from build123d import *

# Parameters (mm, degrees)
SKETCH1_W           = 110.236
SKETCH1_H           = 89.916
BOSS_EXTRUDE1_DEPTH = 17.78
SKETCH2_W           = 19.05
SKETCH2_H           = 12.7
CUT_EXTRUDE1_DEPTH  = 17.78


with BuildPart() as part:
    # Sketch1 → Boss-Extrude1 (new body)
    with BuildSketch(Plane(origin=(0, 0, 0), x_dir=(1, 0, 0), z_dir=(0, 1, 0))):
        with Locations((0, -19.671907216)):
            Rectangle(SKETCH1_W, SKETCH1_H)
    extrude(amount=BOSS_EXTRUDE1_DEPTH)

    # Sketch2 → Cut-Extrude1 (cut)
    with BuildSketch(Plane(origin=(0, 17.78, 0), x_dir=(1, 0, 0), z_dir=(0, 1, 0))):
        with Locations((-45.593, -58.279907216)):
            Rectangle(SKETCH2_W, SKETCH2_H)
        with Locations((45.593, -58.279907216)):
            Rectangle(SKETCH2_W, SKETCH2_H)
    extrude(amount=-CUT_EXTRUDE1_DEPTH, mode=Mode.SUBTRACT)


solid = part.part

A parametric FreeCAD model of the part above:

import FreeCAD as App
import Part
import Sketcher
from FreeCAD import Vector
Q = App.Units.Quantity


def add_polygon(sketch, points):
    """Adds a closed chain of lines whose ends are joined by coincident constraints."""
    first, n = sketch.GeometryCount, len(points)
    for a, b in zip(points, points[1:] + points[:1]):
        sketch.addGeometry(Part.LineSegment(App.Vector(*a, 0), App.Vector(*b, 0)), False)
    for i in range(n):
        sketch.addConstraint(Sketcher.Constraint("Coincident", first + i, 2, first + (i + 1) % n, 1))

doc = App.newDocument("Part")
params = doc.addObject("Spreadsheet::Sheet", "Params")
for row, (alias, value) in enumerate([
    ("sketch1_width", "4.34 in"),
    ("sketch1_height", "3.54 in"),
    ("pad1_length", "0.7 in"),
    ("sketch2_height", "0.5 in"),
    ("sketch2_width", "0.75 in"),
    ("pocket1_length", "0.7 in"),
], start=1):
    params.set(f"A{row}", alias)
    params.set(f"B{row}", "=" + value)
    params.setAlias(f"B{row}", alias)

body = doc.addObject("PartDesign::Body", "Body")

sketch1 = body.newObject("Sketcher::SketchObject", "Sketch")
sketch1.AttachmentSupport = (doc.getObject("XZ_Plane"), [""])
sketch1.MapMode = "FlatFace"
add_polygon(sketch1, [(-55, -25), (-55, 65), (55, 65), (55, -25)])
sketch1.addConstraint(Sketcher.Constraint("Vertical", 0))
sketch1.addConstraint(Sketcher.Constraint("Horizontal", 1))
sketch1.addConstraint(Sketcher.Constraint("Vertical", 2))
sketch1.addConstraint(Sketcher.Constraint("Horizontal", 3))
sketch1.addConstraint(Sketcher.Constraint("DistanceX", 1, 1, 1, 2, Q("4.34 in")))
sketch1.addConstraint(Sketcher.Constraint("DistanceY", 0, 1, 0, 2, Q("3.54 in")))
sketch1.addConstraint(Sketcher.Constraint("DistanceX", 0, 2, -1, 1, Q("2.17 in")))
sketch1.addConstraint(Sketcher.Constraint("DistanceY", -1, 1, 0, 2, Q("64.629907 mm")))
sketch1.setExpression("Constraints[8]", "Params.sketch1_width")
sketch1.setExpression("Constraints[9]", "Params.sketch1_height")
pad1 = body.newObject("PartDesign::Pad", "Pad")
pad1.Profile = sketch1
pad1.setExpression("Length", "Params.pad1_length")
pad1.Reversed = True

sketch2 = body.newObject("Sketcher::SketchObject", "Sketch001")
sketch2.AttachmentSupport = (doc.getObject("XZ_Plane"), [""])
sketch2.MapMode = "FlatFace"
sketch2.AttachmentOffset = App.Placement(Vector(0, 0, -0.7 * 25.4), App.Rotation())
add_polygon(sketch2, [(-55, 52), (-55, 65), (-36, 65), (-36, 52)])
add_polygon(sketch2, [(36, 52), (36, 65), (55, 65), (55, 52)])
sketch2.addConstraint(Sketcher.Constraint("Vertical", 0))
sketch2.addConstraint(Sketcher.Constraint("Horizontal", 1))
sketch2.addConstraint(Sketcher.Constraint("Vertical", 2))
sketch2.addConstraint(Sketcher.Constraint("Horizontal", 3))
sketch2.addConstraint(Sketcher.Constraint("Vertical", 4))
sketch2.addConstraint(Sketcher.Constraint("Horizontal", 5))
sketch2.addConstraint(Sketcher.Constraint("Vertical", 6))
sketch2.addConstraint(Sketcher.Constraint("Horizontal", 7))
sketch2.addConstraint(Sketcher.Constraint("Symmetric", 1, 2, 4, 2, -2))
sketch2.addConstraint(Sketcher.Constraint("Symmetric", 3, 2, 6, 2, -2))
sketch2.addConstraint(Sketcher.Constraint("DistanceY", 0, 1, 0, 2, Q("0.5 in")))
sketch2.addConstraint(Sketcher.Constraint("DistanceX", 1, 1, 1, 2, Q("0.75 in")))
sketch2.addConstraint(Sketcher.Constraint("DistanceX", 0, 2, -1, 1, Q("2.17 in")))
sketch2.addConstraint(Sketcher.Constraint("DistanceY", -1, 1, 0, 2, Q("64.629907 mm")))
sketch2.setExpression("Constraints[18]", "Params.sketch2_height")
sketch2.setExpression("Constraints[19]", "Params.sketch2_width")
pocket1 = body.newObject("PartDesign::Pocket", "Pocket")
pocket1.Profile = sketch2
pocket1.setExpression("Length", "Params.pocket1_length")
pocket1.Reversed = True

doc.recompute()
